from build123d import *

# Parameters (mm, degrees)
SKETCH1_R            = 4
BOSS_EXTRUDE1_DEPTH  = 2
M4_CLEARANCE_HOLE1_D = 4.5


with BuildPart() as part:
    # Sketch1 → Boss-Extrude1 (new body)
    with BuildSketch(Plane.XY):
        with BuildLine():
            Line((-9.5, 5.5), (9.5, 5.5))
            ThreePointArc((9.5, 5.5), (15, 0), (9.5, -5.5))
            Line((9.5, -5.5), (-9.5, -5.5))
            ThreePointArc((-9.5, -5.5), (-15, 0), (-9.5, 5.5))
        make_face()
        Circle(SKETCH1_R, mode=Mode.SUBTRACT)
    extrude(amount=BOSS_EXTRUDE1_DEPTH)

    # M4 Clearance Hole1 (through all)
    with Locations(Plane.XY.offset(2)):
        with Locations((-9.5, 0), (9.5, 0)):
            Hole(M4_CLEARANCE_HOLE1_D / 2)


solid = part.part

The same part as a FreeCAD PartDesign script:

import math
import FreeCAD as App
import Part
import Sketcher
from FreeCAD import Vector
Q = App.Units.Quantity

doc = App.newDocument("Part")
body = doc.addObject("PartDesign::Body", "Body")

sketch1 = body.newObject("Sketcher::SketchObject", "Sketch")
sketch1.AttachmentSupport = (doc.getObject("XY_Plane"), [""])
sketch1.MapMode = "FlatFace"
sketch1.addGeometry([
    Part.LineSegment(Vector(9.5, 5.5, 0), Vector(-9.5, 5.5, 0)),
    Part.ArcOfCircle(Part.Circle(Vector(-9.5, 0, 0), Vector(0, 0, 1), 5.5), math.radians(90), math.radians(270)),
    Part.LineSegment(Vector(-9.5, -5.5, 0), Vector(9.5, -5.5, 0)),
    Part.ArcOfCircle(Part.Circle(Vector(9.5, 0, 0), Vector(0, 0, 1), 5.5), math.radians(-90), math.radians(90)),
    Part.Circle(Vector(0, 0, 0), Vector(0, 0, 1), 4),
], False)
sketch1.addConstraint([
    Sketcher.Constraint("Tangent", 0, 2, 1, 1),
    Sketcher.Constraint("Tangent", 1, 2, 2, 1),
    Sketcher.Constraint("Tangent", 2, 2, 3, 1),
    Sketcher.Constraint("Tangent", 3, 2, 0, 1),
    Sketcher.Constraint("Horizontal", 0),
    Sketcher.Constraint("Horizontal", 2),
    Sketcher.Constraint("Coincident", 4, 3, -1, 1),
    Sketcher.Constraint("Symmetric", 1, 3, 3, 3, -1, 1),
    Sketcher.Constraint("Diameter", 4, Q("8 mm")),
    Sketcher.Constraint("Radius", 1, Q("5.5 mm")),
    Sketcher.Constraint("DistanceX", 0, 2, 0, 1, Q("19 mm")),
])
pad1 = body.newObject("PartDesign::Pad", "Pad")
pad1.Profile = sketch1
pad1.Length = 2

sketch2 = body.newObject("Sketcher::SketchObject", "Sketch001")
sketch2.AttachmentSupport = (doc.getObject("XY_Plane"), [""])
sketch2.MapMode = "FlatFace"
sketch2.AttachmentOffset = App.Placement(Vector(0, 0, 2), App.Rotation())
sketch2.addGeometry([
    Part.Circle(Vector(-9.5, 0, 0), Vector(0, 0, 1), 2.25),
    Part.Circle(Vector(9.5, 0, 0), Vector(0, 0, 1), 2.25),
], False)
sketch2.addConstraint([
    Sketcher.Constraint("Equal", 0, 1),
    Sketcher.Constraint("Symmetric", 0, 3, 1, 3, -1, 1),
    Sketcher.Constraint("PointOnObject", 0, 3, -1),
    Sketcher.Constraint("Diameter", 0, Q("4.5 mm")),
    Sketcher.Constraint("DistanceX", 0, 3, 1, 3, Q("19 mm")),
])
doc.recompute()
hole = body.newObject("PartDesign::Hole", "Hole")
hole.Profile = sketch2
hole.ThreadType = "None"
hole.Diameter = 4.5
hole.DepthType = "ThroughAll"

doc.recompute()
